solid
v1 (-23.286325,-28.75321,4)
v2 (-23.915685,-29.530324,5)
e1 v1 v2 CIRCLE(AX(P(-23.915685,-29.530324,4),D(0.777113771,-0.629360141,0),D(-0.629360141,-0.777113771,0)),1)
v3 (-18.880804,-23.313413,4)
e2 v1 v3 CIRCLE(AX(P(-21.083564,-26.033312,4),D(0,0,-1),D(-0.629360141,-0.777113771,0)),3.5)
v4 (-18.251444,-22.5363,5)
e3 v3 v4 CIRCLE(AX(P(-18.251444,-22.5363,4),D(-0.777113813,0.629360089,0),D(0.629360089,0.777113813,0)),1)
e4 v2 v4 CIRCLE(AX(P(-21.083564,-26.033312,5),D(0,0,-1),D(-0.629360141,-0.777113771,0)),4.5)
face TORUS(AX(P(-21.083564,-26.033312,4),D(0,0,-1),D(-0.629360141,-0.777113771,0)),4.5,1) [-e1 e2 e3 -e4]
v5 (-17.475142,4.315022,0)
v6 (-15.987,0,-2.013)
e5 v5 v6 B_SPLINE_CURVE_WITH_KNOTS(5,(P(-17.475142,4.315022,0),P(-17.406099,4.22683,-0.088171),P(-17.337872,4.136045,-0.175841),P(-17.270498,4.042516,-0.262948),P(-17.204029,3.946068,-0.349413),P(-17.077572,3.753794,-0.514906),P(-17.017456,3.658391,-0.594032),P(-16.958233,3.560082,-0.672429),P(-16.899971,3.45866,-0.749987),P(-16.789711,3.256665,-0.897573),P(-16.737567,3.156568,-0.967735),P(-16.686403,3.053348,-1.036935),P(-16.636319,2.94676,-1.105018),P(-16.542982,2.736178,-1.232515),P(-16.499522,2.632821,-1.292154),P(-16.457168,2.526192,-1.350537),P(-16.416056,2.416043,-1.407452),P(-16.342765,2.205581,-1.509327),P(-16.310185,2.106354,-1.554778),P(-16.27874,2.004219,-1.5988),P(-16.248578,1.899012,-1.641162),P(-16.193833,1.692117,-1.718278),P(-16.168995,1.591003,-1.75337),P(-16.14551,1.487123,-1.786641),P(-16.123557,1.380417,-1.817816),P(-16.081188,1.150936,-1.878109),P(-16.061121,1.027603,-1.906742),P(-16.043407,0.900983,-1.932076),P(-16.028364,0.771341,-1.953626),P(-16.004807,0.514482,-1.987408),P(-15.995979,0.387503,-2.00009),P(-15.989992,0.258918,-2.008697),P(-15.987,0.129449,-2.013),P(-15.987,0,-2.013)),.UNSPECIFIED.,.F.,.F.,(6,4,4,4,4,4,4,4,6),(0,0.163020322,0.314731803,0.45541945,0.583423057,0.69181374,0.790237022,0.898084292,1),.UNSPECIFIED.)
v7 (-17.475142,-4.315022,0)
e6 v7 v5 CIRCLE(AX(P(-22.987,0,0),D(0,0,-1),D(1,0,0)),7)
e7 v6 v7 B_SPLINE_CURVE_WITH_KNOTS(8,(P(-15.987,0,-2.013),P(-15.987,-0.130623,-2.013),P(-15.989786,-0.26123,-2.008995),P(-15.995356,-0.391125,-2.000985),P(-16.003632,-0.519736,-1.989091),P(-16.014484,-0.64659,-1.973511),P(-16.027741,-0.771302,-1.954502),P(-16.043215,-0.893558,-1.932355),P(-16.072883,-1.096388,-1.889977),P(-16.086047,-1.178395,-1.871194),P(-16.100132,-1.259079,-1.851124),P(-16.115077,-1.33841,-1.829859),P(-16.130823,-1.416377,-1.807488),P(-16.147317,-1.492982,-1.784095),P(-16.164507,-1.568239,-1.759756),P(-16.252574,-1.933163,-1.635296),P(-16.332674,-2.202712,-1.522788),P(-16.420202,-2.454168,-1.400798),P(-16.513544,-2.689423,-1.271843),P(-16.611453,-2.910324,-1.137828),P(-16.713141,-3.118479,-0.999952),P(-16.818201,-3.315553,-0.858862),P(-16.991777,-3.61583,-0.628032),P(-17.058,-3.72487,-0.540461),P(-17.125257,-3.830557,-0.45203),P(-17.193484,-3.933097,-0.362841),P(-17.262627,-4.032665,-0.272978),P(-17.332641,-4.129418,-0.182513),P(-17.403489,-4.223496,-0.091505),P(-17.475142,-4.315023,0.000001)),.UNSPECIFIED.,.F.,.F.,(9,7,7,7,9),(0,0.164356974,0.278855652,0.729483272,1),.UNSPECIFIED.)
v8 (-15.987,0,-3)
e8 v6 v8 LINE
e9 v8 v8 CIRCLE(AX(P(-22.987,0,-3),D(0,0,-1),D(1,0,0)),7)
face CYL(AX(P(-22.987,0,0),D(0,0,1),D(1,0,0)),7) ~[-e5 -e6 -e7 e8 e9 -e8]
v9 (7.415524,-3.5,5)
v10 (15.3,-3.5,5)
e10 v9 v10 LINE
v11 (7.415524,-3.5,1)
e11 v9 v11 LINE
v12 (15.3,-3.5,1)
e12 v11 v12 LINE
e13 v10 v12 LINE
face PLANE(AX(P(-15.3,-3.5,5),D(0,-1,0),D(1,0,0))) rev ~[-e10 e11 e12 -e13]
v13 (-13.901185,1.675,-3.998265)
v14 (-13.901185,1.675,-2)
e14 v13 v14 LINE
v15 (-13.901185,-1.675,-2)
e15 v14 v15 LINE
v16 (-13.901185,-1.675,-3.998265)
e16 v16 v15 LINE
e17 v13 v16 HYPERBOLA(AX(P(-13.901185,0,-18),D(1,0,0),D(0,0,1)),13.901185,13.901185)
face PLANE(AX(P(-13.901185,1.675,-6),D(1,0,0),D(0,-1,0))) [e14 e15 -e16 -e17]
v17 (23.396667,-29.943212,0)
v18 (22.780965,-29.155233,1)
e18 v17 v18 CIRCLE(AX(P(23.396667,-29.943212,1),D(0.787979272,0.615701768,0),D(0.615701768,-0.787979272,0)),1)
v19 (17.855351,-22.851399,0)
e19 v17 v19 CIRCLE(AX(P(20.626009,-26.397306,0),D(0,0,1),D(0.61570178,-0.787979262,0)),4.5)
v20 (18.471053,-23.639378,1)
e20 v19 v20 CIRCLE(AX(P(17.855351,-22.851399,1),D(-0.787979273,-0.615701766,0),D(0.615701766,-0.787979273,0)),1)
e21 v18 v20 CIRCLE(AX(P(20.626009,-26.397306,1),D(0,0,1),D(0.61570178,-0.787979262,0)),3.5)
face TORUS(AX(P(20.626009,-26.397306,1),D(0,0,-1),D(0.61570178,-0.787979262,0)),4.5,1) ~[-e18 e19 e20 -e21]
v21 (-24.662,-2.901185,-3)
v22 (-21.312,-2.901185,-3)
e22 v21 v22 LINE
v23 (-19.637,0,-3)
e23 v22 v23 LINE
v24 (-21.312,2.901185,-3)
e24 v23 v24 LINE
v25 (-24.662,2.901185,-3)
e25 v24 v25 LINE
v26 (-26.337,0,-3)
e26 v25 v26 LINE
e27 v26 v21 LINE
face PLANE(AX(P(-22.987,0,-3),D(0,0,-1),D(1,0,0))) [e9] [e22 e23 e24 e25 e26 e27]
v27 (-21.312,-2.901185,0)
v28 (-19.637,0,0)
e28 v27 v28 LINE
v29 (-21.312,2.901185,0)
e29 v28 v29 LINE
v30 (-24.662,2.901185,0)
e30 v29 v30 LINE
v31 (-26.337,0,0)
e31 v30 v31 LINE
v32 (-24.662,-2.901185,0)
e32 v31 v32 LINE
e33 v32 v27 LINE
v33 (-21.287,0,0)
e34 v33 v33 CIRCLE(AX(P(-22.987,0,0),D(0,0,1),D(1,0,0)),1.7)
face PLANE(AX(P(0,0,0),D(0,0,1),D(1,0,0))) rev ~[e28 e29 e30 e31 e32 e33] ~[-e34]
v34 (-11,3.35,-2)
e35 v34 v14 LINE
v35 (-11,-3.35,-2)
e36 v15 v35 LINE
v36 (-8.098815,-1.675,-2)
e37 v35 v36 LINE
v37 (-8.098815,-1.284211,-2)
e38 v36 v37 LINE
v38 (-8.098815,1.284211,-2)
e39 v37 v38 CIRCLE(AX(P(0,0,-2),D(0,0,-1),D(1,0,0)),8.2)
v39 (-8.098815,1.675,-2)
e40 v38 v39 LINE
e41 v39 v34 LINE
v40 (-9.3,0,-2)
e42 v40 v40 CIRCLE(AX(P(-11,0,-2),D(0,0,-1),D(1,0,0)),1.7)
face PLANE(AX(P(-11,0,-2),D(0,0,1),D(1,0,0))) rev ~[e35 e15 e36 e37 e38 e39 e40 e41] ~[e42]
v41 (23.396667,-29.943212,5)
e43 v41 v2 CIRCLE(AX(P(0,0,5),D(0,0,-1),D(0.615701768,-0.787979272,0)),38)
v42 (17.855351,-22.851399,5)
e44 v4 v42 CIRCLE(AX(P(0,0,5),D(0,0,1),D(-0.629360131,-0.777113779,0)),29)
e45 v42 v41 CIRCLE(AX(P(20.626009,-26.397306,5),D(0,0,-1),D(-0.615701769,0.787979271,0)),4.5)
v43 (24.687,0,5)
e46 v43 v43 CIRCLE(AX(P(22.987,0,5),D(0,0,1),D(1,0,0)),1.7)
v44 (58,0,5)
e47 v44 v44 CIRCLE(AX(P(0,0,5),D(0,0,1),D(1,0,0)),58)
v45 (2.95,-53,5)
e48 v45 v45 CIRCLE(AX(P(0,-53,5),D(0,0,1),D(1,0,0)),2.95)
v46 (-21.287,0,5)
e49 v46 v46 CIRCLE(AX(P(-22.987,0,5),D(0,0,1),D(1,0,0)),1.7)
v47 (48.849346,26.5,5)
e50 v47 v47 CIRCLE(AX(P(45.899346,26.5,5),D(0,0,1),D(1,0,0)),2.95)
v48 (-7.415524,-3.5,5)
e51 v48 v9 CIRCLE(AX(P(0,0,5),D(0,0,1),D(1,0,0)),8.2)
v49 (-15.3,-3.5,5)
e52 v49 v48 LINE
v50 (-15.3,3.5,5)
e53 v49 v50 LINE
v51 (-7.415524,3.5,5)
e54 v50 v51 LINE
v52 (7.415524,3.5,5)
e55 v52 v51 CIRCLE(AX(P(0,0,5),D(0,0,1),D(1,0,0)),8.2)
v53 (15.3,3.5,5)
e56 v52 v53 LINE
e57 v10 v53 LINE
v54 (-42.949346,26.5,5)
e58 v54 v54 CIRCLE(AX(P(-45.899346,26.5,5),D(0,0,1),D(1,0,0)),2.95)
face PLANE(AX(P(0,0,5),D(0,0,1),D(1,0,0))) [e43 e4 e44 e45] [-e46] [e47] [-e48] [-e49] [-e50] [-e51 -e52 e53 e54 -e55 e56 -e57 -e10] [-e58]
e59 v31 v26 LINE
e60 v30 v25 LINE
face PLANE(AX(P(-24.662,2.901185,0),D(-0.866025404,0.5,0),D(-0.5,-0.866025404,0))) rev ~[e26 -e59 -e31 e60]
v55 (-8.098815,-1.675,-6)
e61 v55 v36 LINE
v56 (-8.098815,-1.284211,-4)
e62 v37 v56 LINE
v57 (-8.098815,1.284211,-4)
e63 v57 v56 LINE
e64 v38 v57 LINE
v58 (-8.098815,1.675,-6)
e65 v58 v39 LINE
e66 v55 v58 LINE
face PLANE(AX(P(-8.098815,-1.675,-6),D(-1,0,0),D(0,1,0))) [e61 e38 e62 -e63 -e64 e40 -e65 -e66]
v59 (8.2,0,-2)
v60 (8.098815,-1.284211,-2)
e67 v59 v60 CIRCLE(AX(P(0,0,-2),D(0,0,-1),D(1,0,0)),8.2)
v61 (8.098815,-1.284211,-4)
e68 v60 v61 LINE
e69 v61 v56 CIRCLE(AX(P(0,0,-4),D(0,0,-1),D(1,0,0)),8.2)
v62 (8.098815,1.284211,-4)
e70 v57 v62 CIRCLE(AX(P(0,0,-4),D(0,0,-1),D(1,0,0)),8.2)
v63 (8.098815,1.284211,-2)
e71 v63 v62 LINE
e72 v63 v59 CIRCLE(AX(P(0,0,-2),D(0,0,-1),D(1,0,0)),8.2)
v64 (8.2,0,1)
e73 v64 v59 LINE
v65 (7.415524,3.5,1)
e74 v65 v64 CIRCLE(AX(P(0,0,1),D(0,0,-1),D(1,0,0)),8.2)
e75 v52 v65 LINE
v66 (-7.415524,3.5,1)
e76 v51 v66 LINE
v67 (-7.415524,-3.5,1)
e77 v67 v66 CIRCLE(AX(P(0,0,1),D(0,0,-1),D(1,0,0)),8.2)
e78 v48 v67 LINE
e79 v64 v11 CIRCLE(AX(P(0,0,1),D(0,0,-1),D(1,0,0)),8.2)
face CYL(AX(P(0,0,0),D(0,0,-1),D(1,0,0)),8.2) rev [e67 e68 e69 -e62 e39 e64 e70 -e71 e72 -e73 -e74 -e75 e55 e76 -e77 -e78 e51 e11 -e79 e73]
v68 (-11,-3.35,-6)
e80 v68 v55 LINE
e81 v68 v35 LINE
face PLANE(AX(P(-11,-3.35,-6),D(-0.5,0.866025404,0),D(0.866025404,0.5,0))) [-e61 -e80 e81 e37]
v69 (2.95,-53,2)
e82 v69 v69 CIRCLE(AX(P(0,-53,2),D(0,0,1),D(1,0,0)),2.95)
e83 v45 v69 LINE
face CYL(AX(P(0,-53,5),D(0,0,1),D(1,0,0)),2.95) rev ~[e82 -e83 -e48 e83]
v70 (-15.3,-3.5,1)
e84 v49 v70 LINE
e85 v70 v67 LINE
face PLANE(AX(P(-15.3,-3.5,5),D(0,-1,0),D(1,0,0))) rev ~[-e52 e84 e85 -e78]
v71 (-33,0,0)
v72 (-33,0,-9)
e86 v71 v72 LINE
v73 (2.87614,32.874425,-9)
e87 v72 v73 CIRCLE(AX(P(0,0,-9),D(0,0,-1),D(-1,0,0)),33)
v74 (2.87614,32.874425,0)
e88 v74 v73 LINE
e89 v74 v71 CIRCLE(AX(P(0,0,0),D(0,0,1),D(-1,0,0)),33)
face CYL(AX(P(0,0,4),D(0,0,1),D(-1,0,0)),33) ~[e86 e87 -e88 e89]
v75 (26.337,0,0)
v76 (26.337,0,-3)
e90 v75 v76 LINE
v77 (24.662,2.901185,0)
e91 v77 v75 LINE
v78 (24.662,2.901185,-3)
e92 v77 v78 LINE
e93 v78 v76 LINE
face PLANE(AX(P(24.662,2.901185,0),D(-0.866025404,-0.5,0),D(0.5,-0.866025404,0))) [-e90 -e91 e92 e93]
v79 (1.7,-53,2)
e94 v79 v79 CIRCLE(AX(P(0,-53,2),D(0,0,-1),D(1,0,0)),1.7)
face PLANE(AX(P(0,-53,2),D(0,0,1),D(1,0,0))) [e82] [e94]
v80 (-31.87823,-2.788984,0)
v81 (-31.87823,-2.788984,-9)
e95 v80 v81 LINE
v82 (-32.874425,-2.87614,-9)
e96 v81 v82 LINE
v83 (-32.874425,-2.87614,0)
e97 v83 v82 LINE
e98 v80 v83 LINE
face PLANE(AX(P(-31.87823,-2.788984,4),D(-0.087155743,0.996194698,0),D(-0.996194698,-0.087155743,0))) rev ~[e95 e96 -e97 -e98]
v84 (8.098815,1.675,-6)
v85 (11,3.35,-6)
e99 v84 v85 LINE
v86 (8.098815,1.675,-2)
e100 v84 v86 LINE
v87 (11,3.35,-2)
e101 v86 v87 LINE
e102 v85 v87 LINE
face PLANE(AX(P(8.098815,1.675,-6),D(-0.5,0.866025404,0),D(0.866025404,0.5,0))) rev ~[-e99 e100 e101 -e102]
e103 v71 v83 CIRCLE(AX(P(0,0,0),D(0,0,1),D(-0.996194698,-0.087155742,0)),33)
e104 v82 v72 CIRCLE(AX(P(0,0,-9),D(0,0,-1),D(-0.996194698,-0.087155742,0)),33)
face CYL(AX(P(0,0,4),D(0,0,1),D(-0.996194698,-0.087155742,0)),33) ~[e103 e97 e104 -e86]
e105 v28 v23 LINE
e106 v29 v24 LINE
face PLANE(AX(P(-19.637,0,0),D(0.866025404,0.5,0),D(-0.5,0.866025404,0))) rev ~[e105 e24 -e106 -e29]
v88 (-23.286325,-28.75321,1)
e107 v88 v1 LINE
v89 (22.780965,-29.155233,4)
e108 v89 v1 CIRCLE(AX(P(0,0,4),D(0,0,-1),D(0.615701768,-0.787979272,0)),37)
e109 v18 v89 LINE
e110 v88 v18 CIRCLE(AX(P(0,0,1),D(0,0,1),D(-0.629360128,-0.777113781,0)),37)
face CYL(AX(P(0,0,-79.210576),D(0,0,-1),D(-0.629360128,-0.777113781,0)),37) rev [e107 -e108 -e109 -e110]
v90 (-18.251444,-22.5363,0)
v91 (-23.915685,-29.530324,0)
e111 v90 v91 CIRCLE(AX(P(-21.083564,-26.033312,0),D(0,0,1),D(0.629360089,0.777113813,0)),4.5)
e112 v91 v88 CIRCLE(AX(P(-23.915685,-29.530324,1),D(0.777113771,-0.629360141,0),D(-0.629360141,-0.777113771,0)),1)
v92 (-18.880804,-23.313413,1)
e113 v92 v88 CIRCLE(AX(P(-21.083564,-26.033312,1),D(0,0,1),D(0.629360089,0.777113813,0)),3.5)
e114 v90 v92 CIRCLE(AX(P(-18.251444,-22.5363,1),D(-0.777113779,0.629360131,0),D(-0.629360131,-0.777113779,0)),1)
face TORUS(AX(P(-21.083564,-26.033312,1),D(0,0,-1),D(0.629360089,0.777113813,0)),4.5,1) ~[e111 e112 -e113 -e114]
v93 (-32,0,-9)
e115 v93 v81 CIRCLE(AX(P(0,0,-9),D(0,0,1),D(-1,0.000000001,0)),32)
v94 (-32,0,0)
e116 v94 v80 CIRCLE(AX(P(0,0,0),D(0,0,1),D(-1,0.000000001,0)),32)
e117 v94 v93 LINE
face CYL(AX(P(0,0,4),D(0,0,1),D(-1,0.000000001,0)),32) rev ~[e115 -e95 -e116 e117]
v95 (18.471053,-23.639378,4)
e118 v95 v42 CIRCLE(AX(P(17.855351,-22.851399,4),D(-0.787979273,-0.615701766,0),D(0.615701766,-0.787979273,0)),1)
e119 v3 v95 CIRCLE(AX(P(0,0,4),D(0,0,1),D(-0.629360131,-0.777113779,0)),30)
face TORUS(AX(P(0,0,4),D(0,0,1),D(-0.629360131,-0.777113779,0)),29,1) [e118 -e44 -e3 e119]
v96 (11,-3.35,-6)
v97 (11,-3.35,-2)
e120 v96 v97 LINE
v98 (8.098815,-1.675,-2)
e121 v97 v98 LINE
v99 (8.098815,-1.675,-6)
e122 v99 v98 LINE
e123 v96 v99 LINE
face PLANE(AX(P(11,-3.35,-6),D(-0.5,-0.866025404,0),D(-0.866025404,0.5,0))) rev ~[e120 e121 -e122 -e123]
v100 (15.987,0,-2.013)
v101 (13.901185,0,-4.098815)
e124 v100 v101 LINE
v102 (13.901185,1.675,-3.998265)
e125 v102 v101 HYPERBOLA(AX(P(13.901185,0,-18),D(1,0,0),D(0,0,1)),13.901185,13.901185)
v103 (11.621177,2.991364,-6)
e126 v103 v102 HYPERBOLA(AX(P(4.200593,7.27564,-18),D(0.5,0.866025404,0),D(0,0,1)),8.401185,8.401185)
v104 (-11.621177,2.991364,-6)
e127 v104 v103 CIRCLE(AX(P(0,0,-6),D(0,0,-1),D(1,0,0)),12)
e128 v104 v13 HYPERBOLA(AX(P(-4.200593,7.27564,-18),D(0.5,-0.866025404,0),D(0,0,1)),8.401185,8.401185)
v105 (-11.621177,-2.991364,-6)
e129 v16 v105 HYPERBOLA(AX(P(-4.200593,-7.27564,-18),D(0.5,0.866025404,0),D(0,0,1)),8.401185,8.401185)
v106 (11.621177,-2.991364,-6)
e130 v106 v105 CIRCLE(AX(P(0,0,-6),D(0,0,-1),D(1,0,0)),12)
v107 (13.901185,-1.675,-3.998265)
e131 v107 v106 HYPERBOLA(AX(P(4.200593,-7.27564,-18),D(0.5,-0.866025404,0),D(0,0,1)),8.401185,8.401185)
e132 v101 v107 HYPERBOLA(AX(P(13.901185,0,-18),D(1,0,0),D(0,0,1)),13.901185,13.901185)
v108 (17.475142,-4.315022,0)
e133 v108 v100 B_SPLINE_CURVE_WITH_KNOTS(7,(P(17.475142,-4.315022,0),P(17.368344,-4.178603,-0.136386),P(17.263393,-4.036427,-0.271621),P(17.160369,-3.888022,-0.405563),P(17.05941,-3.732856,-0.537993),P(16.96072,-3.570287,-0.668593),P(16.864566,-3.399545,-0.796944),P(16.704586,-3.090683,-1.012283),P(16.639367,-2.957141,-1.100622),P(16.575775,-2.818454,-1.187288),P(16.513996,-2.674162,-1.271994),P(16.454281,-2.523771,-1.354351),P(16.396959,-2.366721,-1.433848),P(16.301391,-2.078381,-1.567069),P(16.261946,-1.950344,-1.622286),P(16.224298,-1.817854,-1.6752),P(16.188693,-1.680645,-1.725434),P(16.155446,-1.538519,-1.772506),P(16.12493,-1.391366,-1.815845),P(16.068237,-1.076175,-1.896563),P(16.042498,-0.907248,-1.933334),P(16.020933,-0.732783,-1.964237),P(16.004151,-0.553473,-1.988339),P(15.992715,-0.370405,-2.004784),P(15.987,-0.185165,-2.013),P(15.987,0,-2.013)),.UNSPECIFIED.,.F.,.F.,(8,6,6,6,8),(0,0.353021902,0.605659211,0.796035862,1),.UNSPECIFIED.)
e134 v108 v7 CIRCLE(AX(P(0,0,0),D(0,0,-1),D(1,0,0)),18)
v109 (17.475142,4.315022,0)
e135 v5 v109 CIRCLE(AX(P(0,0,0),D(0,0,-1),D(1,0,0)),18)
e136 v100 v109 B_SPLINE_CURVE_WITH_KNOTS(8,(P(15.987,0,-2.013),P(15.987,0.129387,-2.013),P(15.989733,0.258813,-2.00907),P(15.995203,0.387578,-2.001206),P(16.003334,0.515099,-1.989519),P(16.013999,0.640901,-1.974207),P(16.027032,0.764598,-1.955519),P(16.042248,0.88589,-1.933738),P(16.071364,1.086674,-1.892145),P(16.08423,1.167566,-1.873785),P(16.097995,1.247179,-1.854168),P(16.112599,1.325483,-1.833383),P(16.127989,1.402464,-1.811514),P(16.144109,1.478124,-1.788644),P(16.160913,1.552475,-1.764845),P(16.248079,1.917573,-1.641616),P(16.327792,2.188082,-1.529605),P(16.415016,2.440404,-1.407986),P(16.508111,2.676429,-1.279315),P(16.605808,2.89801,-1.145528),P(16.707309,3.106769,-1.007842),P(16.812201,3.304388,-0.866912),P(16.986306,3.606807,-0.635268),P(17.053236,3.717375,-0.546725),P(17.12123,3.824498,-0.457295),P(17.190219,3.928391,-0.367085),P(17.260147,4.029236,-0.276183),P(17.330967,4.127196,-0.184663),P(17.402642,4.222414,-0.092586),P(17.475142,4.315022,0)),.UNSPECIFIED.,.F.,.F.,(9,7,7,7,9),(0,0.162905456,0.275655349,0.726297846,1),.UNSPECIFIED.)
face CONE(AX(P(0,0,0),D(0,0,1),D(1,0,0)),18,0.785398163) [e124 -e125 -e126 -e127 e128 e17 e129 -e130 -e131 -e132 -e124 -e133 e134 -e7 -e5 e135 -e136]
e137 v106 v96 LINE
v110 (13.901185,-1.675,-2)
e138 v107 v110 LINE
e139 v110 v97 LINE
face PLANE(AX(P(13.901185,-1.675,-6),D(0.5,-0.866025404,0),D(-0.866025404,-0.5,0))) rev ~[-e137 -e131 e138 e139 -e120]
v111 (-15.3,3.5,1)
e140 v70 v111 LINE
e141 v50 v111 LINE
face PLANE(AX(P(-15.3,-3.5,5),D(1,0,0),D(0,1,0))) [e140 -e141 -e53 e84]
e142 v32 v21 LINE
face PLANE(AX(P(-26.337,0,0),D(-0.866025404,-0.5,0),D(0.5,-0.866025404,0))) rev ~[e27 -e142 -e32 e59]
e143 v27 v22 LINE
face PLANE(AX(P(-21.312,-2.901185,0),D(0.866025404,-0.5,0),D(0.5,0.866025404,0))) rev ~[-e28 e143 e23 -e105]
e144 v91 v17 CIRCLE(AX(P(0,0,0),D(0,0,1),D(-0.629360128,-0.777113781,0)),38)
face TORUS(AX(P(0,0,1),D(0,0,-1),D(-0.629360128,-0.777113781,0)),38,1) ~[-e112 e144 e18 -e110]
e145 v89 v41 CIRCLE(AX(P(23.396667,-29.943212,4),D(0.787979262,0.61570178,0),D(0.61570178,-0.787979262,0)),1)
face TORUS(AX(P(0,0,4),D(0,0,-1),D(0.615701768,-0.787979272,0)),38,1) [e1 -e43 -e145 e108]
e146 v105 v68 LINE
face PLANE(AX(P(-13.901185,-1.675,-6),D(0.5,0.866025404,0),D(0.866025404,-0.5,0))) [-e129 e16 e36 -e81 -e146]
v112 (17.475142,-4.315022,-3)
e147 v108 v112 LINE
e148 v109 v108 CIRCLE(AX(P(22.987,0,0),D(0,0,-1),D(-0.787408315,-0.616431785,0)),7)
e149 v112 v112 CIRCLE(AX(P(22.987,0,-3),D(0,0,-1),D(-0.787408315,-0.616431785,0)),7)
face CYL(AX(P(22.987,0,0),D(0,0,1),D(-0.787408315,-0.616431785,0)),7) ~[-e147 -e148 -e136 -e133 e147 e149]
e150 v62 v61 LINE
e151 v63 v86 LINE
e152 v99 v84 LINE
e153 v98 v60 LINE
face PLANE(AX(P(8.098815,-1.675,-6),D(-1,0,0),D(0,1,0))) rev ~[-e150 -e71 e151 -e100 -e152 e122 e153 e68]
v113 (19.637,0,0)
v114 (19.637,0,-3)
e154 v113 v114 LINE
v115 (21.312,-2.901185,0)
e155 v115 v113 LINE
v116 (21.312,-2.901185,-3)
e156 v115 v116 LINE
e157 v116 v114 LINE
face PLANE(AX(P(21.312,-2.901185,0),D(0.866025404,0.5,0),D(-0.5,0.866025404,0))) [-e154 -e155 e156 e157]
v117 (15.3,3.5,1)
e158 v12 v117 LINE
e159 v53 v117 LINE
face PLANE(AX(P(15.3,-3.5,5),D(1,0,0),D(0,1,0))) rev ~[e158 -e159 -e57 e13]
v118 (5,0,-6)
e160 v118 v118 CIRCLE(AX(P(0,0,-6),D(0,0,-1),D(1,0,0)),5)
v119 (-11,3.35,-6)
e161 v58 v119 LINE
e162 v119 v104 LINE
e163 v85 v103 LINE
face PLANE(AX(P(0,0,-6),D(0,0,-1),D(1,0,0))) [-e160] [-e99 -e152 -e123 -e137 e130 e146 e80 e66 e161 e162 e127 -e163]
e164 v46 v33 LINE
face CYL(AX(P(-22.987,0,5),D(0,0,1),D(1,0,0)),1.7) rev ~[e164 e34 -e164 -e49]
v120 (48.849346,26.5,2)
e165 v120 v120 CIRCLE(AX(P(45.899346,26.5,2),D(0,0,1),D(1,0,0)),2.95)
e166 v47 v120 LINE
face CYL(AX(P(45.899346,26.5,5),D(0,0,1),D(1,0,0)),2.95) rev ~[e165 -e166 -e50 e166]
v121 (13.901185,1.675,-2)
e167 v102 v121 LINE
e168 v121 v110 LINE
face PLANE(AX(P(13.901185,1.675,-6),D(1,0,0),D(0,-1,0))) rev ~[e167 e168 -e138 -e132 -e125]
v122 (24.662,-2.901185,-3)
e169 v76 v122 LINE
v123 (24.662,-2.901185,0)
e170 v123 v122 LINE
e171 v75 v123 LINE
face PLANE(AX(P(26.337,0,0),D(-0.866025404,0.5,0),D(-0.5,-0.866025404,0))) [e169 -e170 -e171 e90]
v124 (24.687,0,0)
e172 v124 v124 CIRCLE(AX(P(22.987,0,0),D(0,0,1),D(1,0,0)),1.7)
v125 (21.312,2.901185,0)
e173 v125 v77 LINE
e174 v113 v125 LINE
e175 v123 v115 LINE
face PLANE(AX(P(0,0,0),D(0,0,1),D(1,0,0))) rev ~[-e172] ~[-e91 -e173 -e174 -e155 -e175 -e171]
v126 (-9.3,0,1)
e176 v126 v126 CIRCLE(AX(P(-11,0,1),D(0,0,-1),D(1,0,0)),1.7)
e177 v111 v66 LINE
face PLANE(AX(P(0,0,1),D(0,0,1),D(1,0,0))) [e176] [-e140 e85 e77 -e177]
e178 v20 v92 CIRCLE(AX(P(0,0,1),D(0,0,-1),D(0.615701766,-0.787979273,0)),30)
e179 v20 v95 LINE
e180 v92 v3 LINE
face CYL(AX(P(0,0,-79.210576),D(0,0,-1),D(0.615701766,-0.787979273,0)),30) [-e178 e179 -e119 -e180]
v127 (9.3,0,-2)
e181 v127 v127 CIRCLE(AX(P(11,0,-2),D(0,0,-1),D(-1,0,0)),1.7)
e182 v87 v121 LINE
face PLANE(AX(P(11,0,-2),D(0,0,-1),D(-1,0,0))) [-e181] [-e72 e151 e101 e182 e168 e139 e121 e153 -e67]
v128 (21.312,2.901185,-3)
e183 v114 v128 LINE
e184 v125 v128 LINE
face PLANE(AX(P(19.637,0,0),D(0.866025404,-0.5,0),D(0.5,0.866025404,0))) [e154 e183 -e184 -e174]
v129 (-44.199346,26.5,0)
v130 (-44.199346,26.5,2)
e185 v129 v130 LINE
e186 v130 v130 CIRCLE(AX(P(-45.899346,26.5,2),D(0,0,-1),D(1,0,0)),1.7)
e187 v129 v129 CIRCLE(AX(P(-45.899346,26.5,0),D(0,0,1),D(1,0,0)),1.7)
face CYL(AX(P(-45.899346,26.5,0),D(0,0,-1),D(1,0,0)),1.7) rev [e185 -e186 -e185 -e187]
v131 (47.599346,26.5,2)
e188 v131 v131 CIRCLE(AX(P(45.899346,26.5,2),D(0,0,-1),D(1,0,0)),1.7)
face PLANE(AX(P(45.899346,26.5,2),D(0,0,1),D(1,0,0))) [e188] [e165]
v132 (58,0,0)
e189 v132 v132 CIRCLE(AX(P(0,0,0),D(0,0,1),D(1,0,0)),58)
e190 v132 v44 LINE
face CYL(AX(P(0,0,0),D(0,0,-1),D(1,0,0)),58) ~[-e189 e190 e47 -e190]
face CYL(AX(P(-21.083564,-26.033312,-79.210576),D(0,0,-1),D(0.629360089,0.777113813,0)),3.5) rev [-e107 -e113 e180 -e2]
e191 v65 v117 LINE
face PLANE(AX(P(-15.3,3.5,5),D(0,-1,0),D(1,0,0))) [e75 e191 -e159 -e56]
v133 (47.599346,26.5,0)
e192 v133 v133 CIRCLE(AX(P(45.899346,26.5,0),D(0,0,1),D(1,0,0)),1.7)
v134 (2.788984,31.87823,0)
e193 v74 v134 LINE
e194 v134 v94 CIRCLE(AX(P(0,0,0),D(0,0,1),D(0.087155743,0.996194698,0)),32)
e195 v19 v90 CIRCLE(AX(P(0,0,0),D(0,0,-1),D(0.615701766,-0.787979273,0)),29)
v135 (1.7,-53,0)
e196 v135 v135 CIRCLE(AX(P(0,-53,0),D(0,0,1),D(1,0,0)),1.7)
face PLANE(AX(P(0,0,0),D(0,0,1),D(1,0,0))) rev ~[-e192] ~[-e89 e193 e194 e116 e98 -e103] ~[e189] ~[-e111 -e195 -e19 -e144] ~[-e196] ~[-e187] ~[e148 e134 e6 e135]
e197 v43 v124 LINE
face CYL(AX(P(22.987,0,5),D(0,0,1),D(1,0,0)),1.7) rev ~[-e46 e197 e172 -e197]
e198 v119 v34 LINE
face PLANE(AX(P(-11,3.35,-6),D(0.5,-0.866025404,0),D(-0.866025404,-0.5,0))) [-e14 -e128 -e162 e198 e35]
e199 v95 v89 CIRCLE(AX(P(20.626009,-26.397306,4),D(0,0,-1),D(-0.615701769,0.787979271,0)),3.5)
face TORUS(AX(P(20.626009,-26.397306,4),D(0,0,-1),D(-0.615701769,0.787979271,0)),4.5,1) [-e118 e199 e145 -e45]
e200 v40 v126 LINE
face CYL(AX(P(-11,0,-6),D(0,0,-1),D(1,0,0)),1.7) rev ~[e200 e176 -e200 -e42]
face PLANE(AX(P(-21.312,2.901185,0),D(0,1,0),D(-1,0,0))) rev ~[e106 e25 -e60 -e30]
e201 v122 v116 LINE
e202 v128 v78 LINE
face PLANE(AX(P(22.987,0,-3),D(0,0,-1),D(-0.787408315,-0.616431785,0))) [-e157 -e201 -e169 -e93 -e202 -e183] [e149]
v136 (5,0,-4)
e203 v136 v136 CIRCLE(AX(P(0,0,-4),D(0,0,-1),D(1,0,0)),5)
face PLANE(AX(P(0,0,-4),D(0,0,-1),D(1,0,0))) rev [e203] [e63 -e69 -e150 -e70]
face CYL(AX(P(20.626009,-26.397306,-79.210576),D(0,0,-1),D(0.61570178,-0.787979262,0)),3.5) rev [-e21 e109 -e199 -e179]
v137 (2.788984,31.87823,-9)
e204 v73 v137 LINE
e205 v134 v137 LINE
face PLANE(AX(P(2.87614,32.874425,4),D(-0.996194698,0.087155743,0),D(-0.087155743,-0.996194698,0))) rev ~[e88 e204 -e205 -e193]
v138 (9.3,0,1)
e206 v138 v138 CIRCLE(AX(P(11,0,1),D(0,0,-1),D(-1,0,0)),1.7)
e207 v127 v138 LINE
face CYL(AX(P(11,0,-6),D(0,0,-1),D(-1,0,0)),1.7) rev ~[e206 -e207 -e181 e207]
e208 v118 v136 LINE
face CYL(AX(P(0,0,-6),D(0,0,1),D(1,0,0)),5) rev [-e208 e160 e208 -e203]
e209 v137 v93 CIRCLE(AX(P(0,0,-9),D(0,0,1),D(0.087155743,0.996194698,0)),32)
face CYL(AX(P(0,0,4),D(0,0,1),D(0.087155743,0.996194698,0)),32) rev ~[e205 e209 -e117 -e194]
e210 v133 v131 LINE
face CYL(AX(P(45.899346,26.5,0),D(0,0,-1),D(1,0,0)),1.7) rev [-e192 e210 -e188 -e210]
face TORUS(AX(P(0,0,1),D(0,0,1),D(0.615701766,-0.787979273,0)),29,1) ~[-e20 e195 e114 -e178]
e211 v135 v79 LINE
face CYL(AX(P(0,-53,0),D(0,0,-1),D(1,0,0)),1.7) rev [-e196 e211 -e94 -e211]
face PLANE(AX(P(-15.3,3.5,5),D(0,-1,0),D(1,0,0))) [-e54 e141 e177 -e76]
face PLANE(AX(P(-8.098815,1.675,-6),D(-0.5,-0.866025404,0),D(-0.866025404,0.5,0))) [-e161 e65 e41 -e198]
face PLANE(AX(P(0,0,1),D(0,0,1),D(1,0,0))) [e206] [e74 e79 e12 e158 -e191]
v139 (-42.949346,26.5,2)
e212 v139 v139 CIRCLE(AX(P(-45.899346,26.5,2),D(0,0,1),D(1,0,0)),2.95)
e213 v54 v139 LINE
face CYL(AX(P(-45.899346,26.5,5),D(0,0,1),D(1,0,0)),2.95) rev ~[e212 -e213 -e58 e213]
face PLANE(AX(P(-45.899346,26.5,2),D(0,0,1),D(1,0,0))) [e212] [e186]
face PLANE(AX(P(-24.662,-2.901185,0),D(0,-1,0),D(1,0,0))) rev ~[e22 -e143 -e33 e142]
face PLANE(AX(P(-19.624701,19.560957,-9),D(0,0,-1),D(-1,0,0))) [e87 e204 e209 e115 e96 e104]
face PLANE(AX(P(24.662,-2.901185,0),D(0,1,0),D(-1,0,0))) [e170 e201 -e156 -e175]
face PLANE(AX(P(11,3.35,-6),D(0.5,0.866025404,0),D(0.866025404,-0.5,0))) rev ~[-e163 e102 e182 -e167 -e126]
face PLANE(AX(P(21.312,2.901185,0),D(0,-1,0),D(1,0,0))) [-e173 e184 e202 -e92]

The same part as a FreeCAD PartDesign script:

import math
import FreeCAD as App
import Part
import Sketcher
Q = App.Units.Quantity


def edges_at(feature, points):
    """Names of the edges that pass closest to the given points."""
    edges = feature.Shape.Edges
    near = lambda p: min(range(len(edges)), key=lambda i: edges[i].distToShape(Part.Vertex(*p))[0])
    return sorted({f"Edge{near(p) + 1}" for p in points})

doc = App.newDocument("Part")
params = doc.addObject("Spreadsheet::Sheet", "Params")
for row, (alias, value) in enumerate([
    ("sketch1_diameter", "116 mm"),
    ("sketch1_diameter2", "3.4 mm"),
    ("sketch1_diameter3", "16.4 mm"),
    ("pad1_length", "5 mm"),
    ("sketch2_width", "7 mm"),
    ("sketch2_height", "4 mm"),
    ("sketch2_height2", "2 mm"),
    ("sketch2_width2", "9.8 mm"),
    ("revolution_angle", "360 deg"),
    ("sketch3_height", "7 mm"),
    ("sketch3_width", "30.6 mm"),
    ("pocket1_length", "4 mm"),
    ("sketch4_height", "3.35 mm"),
    ("pocket2_length", "4 mm"),
    ("sketch5_diameter", "3.4 mm"),
    ("sketch6_diameter", "5.9 mm"),
    ("pocket4_length", "3 mm"),
    ("sketch7_diameter", "3.4 mm"),
    ("sketch8_radius", "33 mm"),
    ("sketch8_radius2", "32 mm"),
    ("pad2_length", "3 mm"),
    ("pad2_length2", "10 mm"),
    ("sketch9_radius", "30 mm"),
    ("sketch9_radius2", "37 mm"),
    ("fillet_radius", "1 mm"),
    ("sketch10_diameter", "14 mm"),
    ("sketch10_width", "3.35 mm"),
    ("pad3_length", "3 mm"),
], start=1):
    params.set(f"A{row}", alias)
    params.set(f"B{row}", "=" + value)
    params.setAlias(f"B{row}", alias)

body = doc.addObject("PartDesign::Body", "Body")

# Sketch on XY plane
sketch1 = body.newObject("Sketcher::SketchObject", "Sketch")
sketch1.AttachmentSupport = (doc.getObject("XY_Plane"), [""])
sketch1.MapMode = "FlatFace"
sketch1.addGeometry([
    Part.Circle(App.Vector(0, 0, 0), App.Vector(0, 0, 1), 58),  # 0
    Part.Circle(App.Vector(0, -53, 0), App.Vector(0, 0, 1), 1.7),  # 1
    Part.Circle(App.Vector(-45.899346, 26.5, 0), App.Vector(0, 0, 1), 1.7),  # 2
    Part.Circle(App.Vector(0, 0, 0), App.Vector(0, 0, 1), 8.2),  # 3
    Part.Circle(App.Vector(45.899346, 26.5, 0), App.Vector(0, 0, 1), 1.7),  # 4
], False)
sketch1.addConstraint([
    Sketcher.Constraint("Coincident", 0, 3, -1, 1),
    Sketcher.Constraint("Coincident", 3, 3, -1, 1),
    Sketcher.Constraint("Equal", 1, 2),
    Sketcher.Constraint("Equal", 2, 4),
    Sketcher.Constraint("Symmetric", 2, 3, 4, 3, -2),
    Sketcher.Constraint("PointOnObject", 1, 3, -2),
    Sketcher.Constraint("Diameter", 0, Q("116 mm")),
    Sketcher.Constraint("Diameter", 1, Q("3.4 mm")),
    Sketcher.Constraint("Diameter", 3, Q("16.4 mm")),
    Sketcher.Constraint("DistanceY", 1, 3, -1, 1, Q("53 mm")),
    Sketcher.Constraint("DistanceY", -1, 1, 2, 3, Q("26.5 mm")),
    Sketcher.Constraint("DistanceX", 2, 3, -1, 1, Q("45.899346 mm")),
])
sketch1.setExpression("Constraints[6]", "Params.sketch1_diameter")
sketch1.setExpression("Constraints[7]", "Params.sketch1_diameter2")
sketch1.setExpression("Constraints[8]", "Params.sketch1_diameter3")
pad1 = body.newObject("PartDesign::Pad", "Pad")
pad1.Profile = sketch1
pad1.setExpression("Length", "Params.pad1_length")

# Sketch on XZ plane
sketch2 = body.newObject("Sketcher::SketchObject", "Sketch001")
sketch2.AttachmentSupport = (doc.getObject("XZ_Plane"), [""])
sketch2.MapMode = "FlatFace"
sketch2.addGeometry([
    Part.LineSegment(App.Vector(-18, 0, 0), App.Vector(-8.2, 0, 0)),  # 0
    Part.LineSegment(App.Vector(-8.2, 0, 0), App.Vector(-8.2, -4, 0)),  # 1
    Part.LineSegment(App.Vector(-8.2, -4, 0), App.Vector(-5, -4, 0)),  # 2
    Part.LineSegment(App.Vector(-5, -4, 0), App.Vector(-5, -6, 0)),  # 3
    Part.LineSegment(App.Vector(-5, -6, 0), App.Vector(-12, -6, 0)),  # 4
    Part.LineSegment(App.Vector(-12, -6, 0), App.Vector(-18, 0, 0)),  # 5
], False)
sketch2.addConstraint([
    Sketcher.Constraint("Coincident", 0, 2, 1, 1),
    Sketcher.Constraint("Coincident", 1, 2, 2, 1),
    Sketcher.Constraint("Coincident", 2, 2, 3, 1),
    Sketcher.Constraint("Coincident", 3, 2, 4, 1),
    Sketcher.Constraint("Coincident", 4, 2, 5, 1),
    Sketcher.Constraint("Coincident", 5, 2, 0, 1),
    Sketcher.Constraint("Horizontal", 0),
    Sketcher.Constraint("Vertical", 1),
    Sketcher.Constraint("Horizontal", 2),
    Sketcher.Constraint("Vertical", 3),
    Sketcher.Constraint("Horizontal", 4),
    Sketcher.Constraint("PointOnObject", 0, 2, -1),
    Sketcher.Constraint("DistanceX", 4, 2, 4, 1, Q("7 mm")),
    Sketcher.Constraint("DistanceY", 1, 2, 1, 1, Q("4 mm")),
    Sketcher.Constraint("DistanceY", 3, 2, 3, 1, Q("2 mm")),
    Sketcher.Constraint("Angle", 5, Q("135 deg")),
    Sketcher.Constraint("DistanceX", 0, 1, 0, 2, Q("9.8 mm")),
    Sketcher.Constraint("DistanceX", 2, 2, -1, 1, Q("5 mm")),
])
sketch2.setExpression("Constraints[12]", "Params.sketch2_width")
sketch2.setExpression("Constraints[13]", "Params.sketch2_height")
sketch2.setExpression("Constraints[14]", "Params.sketch2_height2")
sketch2.setExpression("Constraints[16]", "Params.sketch2_width2")
revolution = body.newObject("PartDesign::Revolution", "Revolution")
revolution.Profile = sketch2
revolution.ReferenceAxis = (sketch2, ["V_Axis"])
revolution.setExpression("Angle", "Params.revolution_angle")

# Sketch on XY plane
sketch3 = body.newObject("Sketcher::SketchObject", "Sketch002")
sketch3.AttachmentSupport = (doc.getObject("XY_Plane"), [""])
sketch3.MapMode = "FlatFace"
sketch3.AttachmentOffset = App.Placement(App.Vector(0, 0, 5), App.Rotation())
sketch3.addGeometry([
    Part.LineSegment(App.Vector(-15.3, 3.5, 0), App.Vector(-15.3, -3.5, 0)),
    Part.LineSegment(App.Vector(-15.3, -3.5, 0), App.Vector(15.3, -3.5, 0)),
    Part.LineSegment(App.Vector(15.3, -3.5, 0), App.Vector(15.3, 3.5, 0)),
    Part.LineSegment(App.Vector(15.3, 3.5, 0), App.Vector(-15.3, 3.5, 0)),
], False)
sketch3.addConstraint([
    Sketcher.Constraint("Coincident", 0, 2, 1, 1),
    Sketcher.Constraint("Coincident", 1, 2, 2, 1),
    Sketcher.Constraint("Coincident", 2, 2, 3, 1),
    Sketcher.Constraint("Coincident", 3, 2, 0, 1),
    Sketcher.Constraint("Vertical", 0),
    Sketcher.Constraint("Horizontal", 1),
    Sketcher.Constraint("Vertical", 2),
    Sketcher.Constraint("Horizontal", 3),
    Sketcher.Constraint("Symmetric", 0, 2, 2, 2, -1, 1),
    Sketcher.Constraint("DistanceY", 0, 2, 0, 1, Q("7 mm")),
    Sketcher.Constraint("DistanceX", 1, 1, 1, 2, Q("30.6 mm")),
])
sketch3.setExpression("Constraints[9]", "Params.sketch3_height")
sketch3.setExpression("Constraints[10]", "Params.sketch3_width")
pocket1 = body.newObject("PartDesign::Pocket", "Pocket")
pocket1.Profile = sketch3
pocket1.setExpression("Length", "Params.pocket1_length")

# Sketch on XY plane
sketch4 = body.newObject("Sketcher::SketchObject", "Sketch003")
sketch4.AttachmentSupport = (doc.getObject("XY_Plane"), [""])
sketch4.MapMode = "FlatFace"
sketch4.AttachmentOffset = App.Placement(App.Vector(0, 0, -6), App.Rotation())
sketch4.addGeometry([
    Part.LineSegment(App.Vector(11, 3.35, 0), App.Vector(13.901185, 1.675, 0)),  # 0
    Part.LineSegment(App.Vector(13.901185, 1.675, 0), App.Vector(13.901185, -1.675, 0)),  # 1
    Part.LineSegment(App.Vector(13.901185, -1.675, 0), App.Vector(11, -3.35, 0)),  # 2
    Part.LineSegment(App.Vector(11, -3.35, 0), App.Vector(8.098815, -1.675, 0)),  # 3
    Part.LineSegment(App.Vector(8.098815, -1.675, 0), App.Vector(8.098815, 1.675, 0)),  # 4
    Part.LineSegment(App.Vector(8.098815, 1.675, 0), App.Vector(11, 3.35, 0)),  # 5
    Part.LineSegment(App.Vector(-8.098815, 1.675, 0), App.Vector(-8.098815, -1.675, 0)),  # 6
    Part.LineSegment(App.Vector(-8.098815, -1.675, 0), App.Vector(-11, -3.35, 0)),  # 7
    Part.LineSegment(App.Vector(-11, -3.35, 0), App.Vector(-13.901185, -1.675, 0)),  # 8
    Part.LineSegment(App.Vector(-13.901185, -1.675, 0), App.Vector(-13.901185, 1.675, 0)),  # 9
    Part.LineSegment(App.Vector(-13.901185, 1.675, 0), App.Vector(-11, 3.35, 0)),  # 10
    Part.LineSegment(App.Vector(-11, 3.35, 0), App.Vector(-8.098815, 1.675, 0)),  # 11
], False)
sketch4.addConstraint([
    Sketcher.Constraint("Coincident", 0, 2, 1, 1),
    Sketcher.Constraint("Coincident", 1, 2, 2, 1),
    Sketcher.Constraint("Coincident", 2, 2, 3, 1),
    Sketcher.Constraint("Coincident", 3, 2, 4, 1),
    Sketcher.Constraint("Coincident", 4, 2, 5, 1),
    Sketcher.Constraint("Coincident", 5, 2, 0, 1),
    Sketcher.Constraint("Coincident", 6, 2, 7, 1),
    Sketcher.Constraint("Coincident", 7, 2, 8, 1),
    Sketcher.Constraint("Coincident", 8, 2, 9, 1),
    Sketcher.Constraint("Coincident", 9, 2, 10, 1),
    Sketcher.Constraint("Coincident", 10, 2, 11, 1),
    Sketcher.Constraint("Coincident", 11, 2, 6, 1),
    Sketcher.Constraint("Vertical", 1),
    Sketcher.Constraint("Vertical", 4),
    Sketcher.Constraint("Vertical", 6),
    Sketcher.Constraint("Vertical", 9),
    Sketcher.Constraint("Symmetric", 4, 2, 6, 2, -1, 1),
    Sketcher.Constraint("Symmetric", 5, 2, 7, 2, -1, 1),
    Sketcher.Constraint("Symmetric", 0, 2, 8, 2, -1, 1),
    Sketcher.Constraint("Symmetric", 2, 2, 10, 2, -1, 1),
    Sketcher.Constraint("Symmetric", 2, 2, 7, 2, -2),
    Sketcher.Constraint("Parallel", 0, 3),
    Sketcher.Constraint("Parallel", 2, 5),
    Sketcher.Constraint("Parallel", 7, 10),
    Sketcher.Constraint("Parallel", 8, 11),
    Sketcher.Constraint("Horizontal", 1, 2, 3, 2),
    Sketcher.Constraint("Horizontal", 0, 2, 4, 2),
    Sketcher.Constraint("Angle", 0, Q("-30 deg")),
    Sketcher.Constraint("DistanceX", -1, 1, 2, 2, Q("11 mm")),
    Sketcher.Constraint("DistanceY", 1, 2, 1, 1, Q("3.35 mm")),
    Sketcher.Constraint("DistanceY", 2, 2, 5, 2, Q("6.7 mm")),
])
sketch4.setExpression("Constraints[29]", "Params.sketch4_height")
pocket2 = body.newObject("PartDesign::Pocket", "Pocket001")
pocket2.Profile = sketch4
pocket2.setExpression("Length", "Params.pocket2_length")
pocket2.Reversed = True

# Sketch on XY plane
sketch5 = body.newObject("Sketcher::SketchObject", "Sketch004")
sketch5.AttachmentSupport = (doc.getObject("XY_Plane"), [""])
sketch5.MapMode = "FlatFace"
sketch5.AttachmentOffset = App.Placement(App.Vector(0, 0, -6), App.Rotation())
sketch5.addGeometry([
    Part.Circle(App.Vector(11, 0, 0), App.Vector(0, 0, 1), 1.7),
    Part.Circle(App.Vector(-11, 0, 0), App.Vector(0, 0, 1), 1.7),
], False)
sketch5.addConstraint([
    Sketcher.Constraint("Equal", 0, 1),
    Sketcher.Constraint("Symmetric", 0, 3, 1, 3, -1, 1),
    Sketcher.Constraint("PointOnObject", 0, 3, -1),
    Sketcher.Constraint("Diameter", 0, Q("3.4 mm")),
    Sketcher.Constraint("DistanceX", -1, 1, 0, 3, Q("11 mm")),
])
sketch5.setExpression("Constraints[3]", "Params.sketch5_diameter")
pocket3 = body.newObject("PartDesign::Pocket", "Pocket002")
pocket3.Profile = sketch5
pocket3.Type = "ThroughAll"
pocket3.Reversed = True

# Sketch on XY plane
sketch6 = body.newObject("Sketcher::SketchObject", "Sketch005")
sketch6.AttachmentSupport = (doc.getObject("XY_Plane"), [""])
sketch6.MapMode = "FlatFace"
sketch6.AttachmentOffset = App.Placement(App.Vector(0, 0, 5), App.Rotation())
sketch6.addGeometry([
    Part.Circle(App.Vector(-45.899346, 26.5, 0), App.Vector(0, 0, 1), 2.95),
    Part.Circle(App.Vector(45.899346, 26.5, 0), App.Vector(0, 0, 1), 2.95),
    Part.Circle(App.Vector(0, -53, 0), App.Vector(0, 0, 1), 2.95),
], False)
sketch6.addConstraint([
    Sketcher.Constraint("Equal", 0, 1),
    Sketcher.Constraint("Equal", 1, 2),
    Sketcher.Constraint("Symmetric", 0, 3, 1, 3, -2),
    Sketcher.Constraint("PointOnObject", 2, 3, -2),
    Sketcher.Constraint("Diameter", 0, Q("5.9 mm")),
    Sketcher.Constraint("DistanceY", 2, 3, -1, 1, Q("53 mm")),
    Sketcher.Constraint("DistanceY", -1, 1, 0, 3, Q("26.5 mm")),
    Sketcher.Constraint("DistanceX", 0, 3, -1, 1, Q("45.899346 mm")),
])
sketch6.setExpression("Constraints[4]", "Params.sketch6_diameter")
pocket4 = body.newObject("PartDesign::Pocket", "Pocket003")
pocket4.Profile = sketch6
pocket4.setExpression("Length", "Params.pocket4_length")

# Sketch on XY plane
sketch7 = body.newObject("Sketcher::SketchObject", "Sketch006")
sketch7.AttachmentSupport = (doc.getObject("XY_Plane"), [""])
sketch7.MapMode = "FlatFace"
sketch7.AttachmentOffset = App.Placement(App.Vector(0, 0, 5), App.Rotation())
sketch7.addGeometry([
    Part.Circle(App.Vector(22.987, 0, 0), App.Vector(0, 0, 1), 1.7),
    Part.Circle(App.Vector(-22.987, 0, 0), App.Vector(0, 0, 1), 1.7),
], False)
sketch7.addConstraint([
    Sketcher.Constraint("Equal", 0, 1),
    Sketcher.Constraint("Symmetric", 0, 3, 1, 3, -1, 1),
    Sketcher.Constraint("PointOnObject", 0, 3, -1),
    Sketcher.Constraint("Diameter", 0, Q("3.4 mm")),
    Sketcher.Constraint("DistanceX", -1, 1, 0, 3, Q("22.987 mm")),
])
sketch7.setExpression("Constraints[3]", "Params.sketch7_diameter")
pocket5 = body.newObject("PartDesign::Pocket", "Pocket004")
pocket5.Profile = sketch7
pocket5.Type = "ThroughAll"

# Sketch on XY plane
sketch8 = body.newObject("Sketcher::SketchObject", "Sketch007")
sketch8.AttachmentSupport = (doc.getObject("XY_Plane"), [""])
sketch8.MapMode = "FlatFace"
sketch8.AttachmentOffset = App.Placement(App.Vector(0, 0, -6), App.Rotation())
sketch8.addGeometry([
    Part.ArcOfCircle(Part.Circle(App.Vector(0, 0, 0), App.Vector(0, 0, 1), 33), math.radians(85), math.radians(180)),  # 0
    Part.LineSegment(App.Vector(2.87614, 32.874425, 0), App.Vector(2.788984, 31.87823, 0)),  # 1
    Part.ArcOfCircle(Part.Circle(App.Vector(0, 0, 0), App.Vector(0, 0, 1), 32), math.radians(85), math.radians(180)),  # 2
    Part.ArcOfCircle(Part.Circle(App.Vector(0, 0, 0), App.Vector(0, 0, 1), 32), math.radians(180), math.radians(185)),  # 3
    Part.LineSegment(App.Vector(-31.87823, -2.788984, 0), App.Vector(-32.874425, -2.87614, 0)),  # 4
    Part.ArcOfCircle(Part.Circle(App.Vector(0, 0, 0), App.Vector(0, 0, 1), 33), math.radians(-180), math.radians(-175)),  # 5
], False)
sketch8.addConstraint([
    Sketcher.Constraint("Coincident", 0, 1, 1, 1),
    Sketcher.Constraint("Coincident", 1, 2, 2, 1),
    Sketcher.Constraint("Tangent", 2, 2, 3, 1),
    Sketcher.Constraint("Coincident", 3, 2, 4, 1),
    Sketcher.Constraint("Coincident", 4, 2, 5, 2),
    Sketcher.Constraint("Tangent", 5, 1, 0, 2),
    Sketcher.Constraint("Coincident", 0, 3, -1, 1),
    Sketcher.Constraint("Coincident", 2, 3, -1, 1),
    Sketcher.Constraint("Equal", 2, 3),
    Sketcher.Constraint("Equal", 0, 5),
    Sketcher.Constraint("PointOnObject", 2, 2, -1),
    Sketcher.Constraint("PointOnObject", 5, 1, -1),
    Sketcher.Constraint("Radius", 0, Q("33 mm")),
    Sketcher.Constraint("Radius", 2, Q("32 mm")),
    Sketcher.Constraint("Angle", 1, Q("-95 deg")),
    Sketcher.Constraint("Angle", 4, Q("-175 deg")),
    Sketcher.Constraint("DistanceX", -1, 1, 0, 1, Q("2.87614 mm")),
    Sketcher.Constraint("DistanceX", 3, 2, -1, 1, Q("31.87823 mm")),
])
sketch8.setExpression("Constraints[12]", "Params.sketch8_radius")
sketch8.setExpression("Constraints[13]", "Params.sketch8_radius2")
pad2 = body.newObject("PartDesign::Pad", "Pad001")
pad2.Profile = sketch8
pad2.Type = "TwoLengths"
pad2.setExpression("Length", "Params.pad2_length")
pad2.setExpression("Length2", "Params.pad2_length2")
pad2.Reversed = True

# Sketch on XY plane
sketch9 = body.newObject("Sketcher::SketchObject", "Sketch008")
sketch9.AttachmentSupport = (doc.getObject("XY_Plane"), [""])
sketch9.MapMode = "FlatFace"
sketch9.AttachmentOffset = App.Placement(App.Vector(0, 0, 5), App.Rotation())
sketch9.addGeometry([
    Part.ArcOfCircle(Part.Circle(App.Vector(0, 0, 0), App.Vector(0, 0, 1), 30), math.radians(-129.00293), math.radians(-51.99707)),
    Part.ArcOfCircle(Part.Circle(App.Vector(-21.083564, -26.033312, 0), App.Vector(0, 0, 1), 3.5), math.radians(50.997073), math.radians(230.997069)),
    Part.ArcOfCircle(Part.Circle(App.Vector(0, 0, 0), App.Vector(0, 0, 1), 37), math.radians(-129.00293), math.radians(-51.99707)),
    Part.ArcOfCircle(Part.Circle(App.Vector(20.626009, -26.397306, 0), App.Vector(0, 0, 1), 3.5), math.radians(-51.997069), math.radians(128.00293)),
], False)
sketch9.addConstraint([
    Sketcher.Constraint("Tangent", 0, 1, 1, 1),
    Sketcher.Constraint("Tangent", 1, 2, 2, 1),
    Sketcher.Constraint("Tangent", 2, 2, 3, 1),
    Sketcher.Constraint("Tangent", 3, 2, 0, 2),
    Sketcher.Constraint("Coincident", 0, 3, -1, 1),
    Sketcher.Constraint("Coincident", 2, 3, -1, 1),
    Sketcher.Constraint("Radius", 0, Q("30 mm")),
    Sketcher.Constraint("Radius", 2, Q("37 mm")),
    Sketcher.Constraint("DistanceY", 1, 3, 0, 1, Q("2.719898 mm")),
    Sketcher.Constraint("DistanceX", -1, 1, 3, 3, Q("20.626009 mm")),
])
sketch9.setExpression("Constraints[6]", "Params.sketch9_radius")
sketch9.setExpression("Constraints[7]", "Params.sketch9_radius2")
pocket6 = body.newObject("PartDesign::Pocket", "Pocket005")
pocket6.Profile = sketch9
pocket6.Type = "ThroughAll"
pocket6.Midplane = True
doc.recompute()

fillet = body.newObject("PartDesign::Fillet", "Fillet")
fillet.Base = (pocket6, edges_at(pocket6, [
    (-0.262, -29.999, 0),
    (23.384, -24.242, 0),
    (-0.323, -36.999, 0),
    (-23.803, -23.831, 0),
    (-23.803, -23.831, 5),
    (-0.323, -36.999, 5),
    (23.384, -24.242, 5),
    (-0.262, -29.999, 5),
]))
fillet.setExpression("Radius", "Params.fillet_radius")

# Sketch on XY plane
sketch10 = body.newObject("Sketcher::SketchObject", "Sketch009")
sketch10.AttachmentSupport = (doc.getObject("XY_Plane"), [""])
sketch10.MapMode = "FlatFace"
sketch10.addGeometry([
    Part.Circle(App.Vector(22.987, 0, 0), App.Vector(0, 0, 1), 7),  # 0
    Part.LineSegment(App.Vector(26.337, 0, 0), App.Vector(24.662, 2.901185, 0)),  # 1
    Part.LineSegment(App.Vector(24.662, 2.901185, 0), App.Vector(21.312, 2.901185, 0)),  # 2
    Part.LineSegment(App.Vector(21.312, 2.901185, 0), App.Vector(19.637, 0, 0)),  # 3
    Part.LineSegment(App.Vector(19.637, 0, 0), App.Vector(21.312, -2.901185, 0)),  # 4
    Part.LineSegment(App.Vector(21.312, -2.901185, 0), App.Vector(24.662, -2.901185, 0)),  # 5
    Part.LineSegment(App.Vector(24.662, -2.901185, 0), App.Vector(26.337, 0, 0)),  # 6
    Part.Circle(App.Vector(-22.987, 0, 0), App.Vector(0, 0, 1), 7),  # 7
    Part.LineSegment(App.Vector(-21.312, -2.901185, 0), App.Vector(-19.637, 0, 0)),  # 8
    Part.LineSegment(App.Vector(-19.637, 0, 0), App.Vector(-21.312, 2.901185, 0)),  # 9
    Part.LineSegment(App.Vector(-21.312, 2.901185, 0), App.Vector(-24.662, 2.901185, 0)),  # 10
    Part.LineSegment(App.Vector(-24.662, 2.901185, 0), App.Vector(-26.337, 0, 0)),  # 11
    Part.LineSegment(App.Vector(-26.337, 0, 0), App.Vector(-24.662, -2.901185, 0)),  # 12
    Part.LineSegment(App.Vector(-24.662, -2.901185, 0), App.Vector(-21.312, -2.901185, 0)),  # 13
], False)
sketch10.addConstraint([
    Sketcher.Constraint("Coincident", 1, 2, 2, 1),
    Sketcher.Constraint("Coincident", 2, 2, 3, 1),
    Sketcher.Constraint("Coincident", 3, 2, 4, 1),
    Sketcher.Constraint("Coincident", 4, 2, 5, 1),
    Sketcher.Constraint("Coincident", 5, 2, 6, 1),
    Sketcher.Constraint("Coincident", 6, 2, 1, 1),
    Sketcher.Constraint("Coincident", 8, 2, 9, 1),
    Sketcher.Constraint("Coincident", 9, 2, 10, 1),
    Sketcher.Constraint("Coincident", 10, 2, 11, 1),
    Sketcher.Constraint("Coincident", 11, 2, 12, 1),
    Sketcher.Constraint("Coincident", 12, 2, 13, 1),
    Sketcher.Constraint("Coincident", 13, 2, 8, 1),
    Sketcher.Constraint("Horizontal", 2),
    Sketcher.Constraint("Horizontal", 5),
    Sketcher.Constraint("Horizontal", 10),
    Sketcher.Constraint("Horizontal", 13),
    Sketcher.Constraint("Equal", 0, 7),
    Sketcher.Constraint("Symmetric", 0, 3, 7, 3, -1, 1),
    Sketcher.Constraint("Symmetric", 3, 2, 8, 2, -1, 1),
    Sketcher.Constraint("Symmetric", 4, 2, 9, 2, -1, 1),
    Sketcher.Constraint("Symmetric", 6, 2, 11, 2, -1, 1),
    Sketcher.Constraint("Symmetric", 1, 2, 12, 2, -1, 1),
    Sketcher.Constraint("Symmetric", 2, 2, 9, 2, -2),
    Sketcher.Constraint("PointOnObject", 0, 3, -1),
    Sketcher.Constraint("PointOnObject", 3, 2, -1),
    Sketcher.Constraint("PointOnObject", 6, 2, -1),
    Sketcher.Constraint("Parallel", 1, 4),
    Sketcher.Constraint("Parallel", 3, 6),
    Sketcher.Constraint("Parallel", 6, 8),
    Sketcher.Constraint("Parallel", 8, 11),
    Sketcher.Constraint("Diameter", 0, Q("14 mm")),
    Sketcher.Constraint("Angle", 1, Q("120 deg")),
    Sketcher.Constraint("DistanceX", 2, 2, 2, 1, Q("3.35 mm")),
    Sketcher.Constraint("DistanceX", 11, 2, 8, 2, Q("6.7 mm")),
    Sketcher.Constraint("DistanceX", 3, 2, 0, 3, Q("3.35 mm")),
    Sketcher.Constraint("DistanceX", -1, 1, 0, 3, Q("22.987 mm")),
])
sketch10.setExpression("Constraints[30]", "Params.sketch10_diameter")
sketch10.setExpression("Constraints[32]", "Params.sketch10_width")
pad3 = body.newObject("PartDesign::Pad", "Pad002")
pad3.Profile = sketch10
pad3.setExpression("Length", "Params.pad3_length")
pad3.Reversed = True

doc.recompute()
